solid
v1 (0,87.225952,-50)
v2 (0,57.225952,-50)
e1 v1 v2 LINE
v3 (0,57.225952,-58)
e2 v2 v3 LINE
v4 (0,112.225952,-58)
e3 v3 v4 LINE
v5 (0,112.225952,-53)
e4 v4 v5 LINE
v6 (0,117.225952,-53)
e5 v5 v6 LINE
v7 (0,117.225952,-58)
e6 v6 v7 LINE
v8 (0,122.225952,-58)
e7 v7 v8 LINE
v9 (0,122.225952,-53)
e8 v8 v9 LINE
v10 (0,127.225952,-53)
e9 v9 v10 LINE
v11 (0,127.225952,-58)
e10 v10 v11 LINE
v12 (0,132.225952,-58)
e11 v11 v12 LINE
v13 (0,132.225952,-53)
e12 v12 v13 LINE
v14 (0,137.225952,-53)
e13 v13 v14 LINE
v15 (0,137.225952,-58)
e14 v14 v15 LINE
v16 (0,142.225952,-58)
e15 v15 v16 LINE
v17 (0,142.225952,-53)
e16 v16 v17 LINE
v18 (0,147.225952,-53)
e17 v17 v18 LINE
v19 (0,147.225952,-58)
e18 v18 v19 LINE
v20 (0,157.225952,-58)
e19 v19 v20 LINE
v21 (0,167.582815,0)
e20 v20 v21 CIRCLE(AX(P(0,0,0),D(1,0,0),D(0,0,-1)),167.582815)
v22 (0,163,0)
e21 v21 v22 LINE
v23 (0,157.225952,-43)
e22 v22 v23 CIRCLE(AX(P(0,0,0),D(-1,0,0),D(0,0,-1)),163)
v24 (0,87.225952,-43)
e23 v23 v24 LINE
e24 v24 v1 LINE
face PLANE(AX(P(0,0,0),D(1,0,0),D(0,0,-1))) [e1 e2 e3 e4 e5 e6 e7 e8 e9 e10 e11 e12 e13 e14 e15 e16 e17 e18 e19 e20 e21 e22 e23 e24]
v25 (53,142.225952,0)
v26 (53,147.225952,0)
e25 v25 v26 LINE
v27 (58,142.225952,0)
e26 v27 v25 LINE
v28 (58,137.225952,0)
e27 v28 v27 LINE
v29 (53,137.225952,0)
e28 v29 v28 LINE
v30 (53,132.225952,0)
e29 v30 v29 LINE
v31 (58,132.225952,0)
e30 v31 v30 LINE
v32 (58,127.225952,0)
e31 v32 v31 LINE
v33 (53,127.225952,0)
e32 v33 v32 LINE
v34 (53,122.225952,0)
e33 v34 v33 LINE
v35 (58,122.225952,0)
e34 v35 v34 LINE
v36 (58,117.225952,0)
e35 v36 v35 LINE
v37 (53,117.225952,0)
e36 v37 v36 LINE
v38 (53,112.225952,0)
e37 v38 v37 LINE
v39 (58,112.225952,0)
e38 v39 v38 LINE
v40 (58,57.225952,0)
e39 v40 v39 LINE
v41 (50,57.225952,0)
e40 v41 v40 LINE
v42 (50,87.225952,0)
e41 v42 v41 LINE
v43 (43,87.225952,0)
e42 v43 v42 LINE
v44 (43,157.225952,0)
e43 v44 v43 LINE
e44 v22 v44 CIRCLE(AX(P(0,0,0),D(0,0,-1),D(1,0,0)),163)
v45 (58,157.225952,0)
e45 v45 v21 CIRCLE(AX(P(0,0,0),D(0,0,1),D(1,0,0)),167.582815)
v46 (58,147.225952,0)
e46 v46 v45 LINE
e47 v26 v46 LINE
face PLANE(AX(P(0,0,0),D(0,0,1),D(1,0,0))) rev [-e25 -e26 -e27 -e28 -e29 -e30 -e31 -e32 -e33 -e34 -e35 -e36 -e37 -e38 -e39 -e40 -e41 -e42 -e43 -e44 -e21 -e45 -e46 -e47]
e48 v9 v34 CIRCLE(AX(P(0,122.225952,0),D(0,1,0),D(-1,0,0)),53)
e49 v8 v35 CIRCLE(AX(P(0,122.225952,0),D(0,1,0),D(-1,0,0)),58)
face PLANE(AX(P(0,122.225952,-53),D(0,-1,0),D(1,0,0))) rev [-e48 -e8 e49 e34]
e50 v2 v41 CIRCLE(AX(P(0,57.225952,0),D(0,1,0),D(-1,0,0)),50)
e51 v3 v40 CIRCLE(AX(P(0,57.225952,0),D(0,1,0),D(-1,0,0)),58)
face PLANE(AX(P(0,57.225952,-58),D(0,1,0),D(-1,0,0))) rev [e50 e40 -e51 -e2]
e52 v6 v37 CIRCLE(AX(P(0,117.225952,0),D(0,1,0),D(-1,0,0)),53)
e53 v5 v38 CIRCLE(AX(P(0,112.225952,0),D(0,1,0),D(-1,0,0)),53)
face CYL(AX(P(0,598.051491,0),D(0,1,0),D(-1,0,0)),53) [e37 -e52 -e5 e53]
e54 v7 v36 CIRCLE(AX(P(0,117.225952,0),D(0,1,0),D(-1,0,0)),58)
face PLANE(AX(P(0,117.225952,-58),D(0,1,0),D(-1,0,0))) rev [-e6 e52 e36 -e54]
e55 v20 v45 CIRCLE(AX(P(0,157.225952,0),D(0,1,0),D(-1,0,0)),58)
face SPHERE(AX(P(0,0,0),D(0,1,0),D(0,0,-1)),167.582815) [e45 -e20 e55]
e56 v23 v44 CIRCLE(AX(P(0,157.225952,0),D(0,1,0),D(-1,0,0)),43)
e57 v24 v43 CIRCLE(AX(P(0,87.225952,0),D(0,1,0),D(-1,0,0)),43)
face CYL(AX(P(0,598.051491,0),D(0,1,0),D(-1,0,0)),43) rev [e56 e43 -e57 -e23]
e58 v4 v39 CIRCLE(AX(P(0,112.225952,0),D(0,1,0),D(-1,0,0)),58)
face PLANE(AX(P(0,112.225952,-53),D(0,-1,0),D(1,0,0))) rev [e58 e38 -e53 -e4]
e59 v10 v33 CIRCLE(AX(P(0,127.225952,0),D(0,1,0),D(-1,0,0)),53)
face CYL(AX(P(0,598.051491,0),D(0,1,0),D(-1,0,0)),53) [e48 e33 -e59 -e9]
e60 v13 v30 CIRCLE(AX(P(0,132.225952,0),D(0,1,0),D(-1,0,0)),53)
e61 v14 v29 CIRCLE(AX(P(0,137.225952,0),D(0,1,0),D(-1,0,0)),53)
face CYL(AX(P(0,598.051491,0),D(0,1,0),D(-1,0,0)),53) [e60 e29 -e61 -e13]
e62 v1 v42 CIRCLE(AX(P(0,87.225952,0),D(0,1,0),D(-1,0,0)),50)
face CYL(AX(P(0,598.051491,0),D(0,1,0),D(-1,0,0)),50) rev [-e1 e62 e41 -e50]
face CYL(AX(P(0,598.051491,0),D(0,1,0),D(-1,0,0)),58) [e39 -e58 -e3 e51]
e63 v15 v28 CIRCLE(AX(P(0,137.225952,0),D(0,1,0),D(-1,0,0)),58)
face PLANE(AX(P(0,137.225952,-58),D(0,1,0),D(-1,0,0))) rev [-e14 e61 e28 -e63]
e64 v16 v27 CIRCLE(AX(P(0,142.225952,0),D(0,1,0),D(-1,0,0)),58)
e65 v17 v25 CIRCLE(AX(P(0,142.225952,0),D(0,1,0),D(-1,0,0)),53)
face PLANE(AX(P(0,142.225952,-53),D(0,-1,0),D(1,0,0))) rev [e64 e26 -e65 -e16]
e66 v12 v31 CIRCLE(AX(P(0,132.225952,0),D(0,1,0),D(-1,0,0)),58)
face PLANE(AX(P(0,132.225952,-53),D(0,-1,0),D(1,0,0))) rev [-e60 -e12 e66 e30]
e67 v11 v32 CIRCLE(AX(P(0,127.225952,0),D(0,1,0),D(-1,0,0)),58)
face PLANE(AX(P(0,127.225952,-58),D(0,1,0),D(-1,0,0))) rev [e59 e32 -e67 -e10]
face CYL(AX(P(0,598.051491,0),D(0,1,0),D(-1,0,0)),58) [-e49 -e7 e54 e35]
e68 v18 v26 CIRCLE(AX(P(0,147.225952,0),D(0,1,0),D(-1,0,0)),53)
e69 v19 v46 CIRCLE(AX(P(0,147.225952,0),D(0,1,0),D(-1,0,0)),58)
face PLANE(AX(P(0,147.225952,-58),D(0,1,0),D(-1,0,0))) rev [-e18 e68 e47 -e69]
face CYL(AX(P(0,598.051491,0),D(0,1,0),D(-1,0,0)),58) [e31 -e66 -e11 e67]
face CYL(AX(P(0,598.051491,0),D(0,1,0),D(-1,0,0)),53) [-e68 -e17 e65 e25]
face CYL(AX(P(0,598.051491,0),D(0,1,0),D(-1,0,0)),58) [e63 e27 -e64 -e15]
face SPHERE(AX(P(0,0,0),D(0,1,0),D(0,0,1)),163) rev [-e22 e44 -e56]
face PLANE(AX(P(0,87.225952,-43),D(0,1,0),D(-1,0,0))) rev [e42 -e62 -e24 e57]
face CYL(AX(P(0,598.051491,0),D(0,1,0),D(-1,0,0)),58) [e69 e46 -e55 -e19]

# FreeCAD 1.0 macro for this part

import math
import FreeCAD as App
import Part
import Sketcher
from FreeCAD import Vector

doc = App.newDocument("Part")
body = doc.addObject("PartDesign::Body", "Body")

sketch1 = body.newObject("Sketcher::SketchObject", "Sketch")
sketch1.AttachmentSupport = (doc.getObject("XY_Plane"), [""])
sketch1.MapMode = "FlatFace"
sketch1.addGeometry([
    Part.LineSegment(Vector(0, 167.6, 0), Vector(0, 163, 0)),
    Part.ArcOfCircle(Part.Circle(Vector(0, 0, 0), Vector(0, 0, 1), 163), math.radians(74.7), math.radians(90)),
    Part.LineSegment(Vector(43, 157.2, 0), Vector(43, 87.2, 0)),
    Part.LineSegment(Vector(43, 87.2, 0), Vector(50, 87.2, 0)),
    Part.LineSegment(Vector(50, 87.2, 0), Vector(50, 57.2, 0)),
    Part.LineSegment(Vector(50, 57.2, 0), Vector(58, 57.2, 0)),
    Part.LineSegment(Vector(58, 57.2, 0), Vector(58, 112.2, 0)),
    Part.LineSegment(Vector(58, 112.2, 0), Vector(53, 112.2, 0)),
    Part.LineSegment(Vector(53, 112.2, 0), Vector(53, 117.2, 0)),
    Part.LineSegment(Vector(53, 117.2, 0), Vector(58, 117.2, 0)),
    Part.LineSegment(Vector(58, 117.2, 0), Vector(58, 122.2, 0)),
    Part.LineSegment(Vector(58, 122.2, 0), Vector(53, 122.2, 0)),
    Part.LineSegment(Vector(53, 122.2, 0), Vector(53, 127.2, 0)),
    Part.LineSegment(Vector(53, 127.2, 0), Vector(58, 127.2, 0)),
    Part.LineSegment(Vector(58, 127.2, 0), Vector(58, 132.2, 0)),
    Part.LineSegment(Vector(58, 132.2, 0), Vector(53, 132.2, 0)),
    Part.LineSegment(Vector(53, 132.2, 0), Vector(53, 137.2, 0)),
    Part.LineSegment(Vector(53, 137.2, 0), Vector(58, 137.2, 0)),
    Part.LineSegment(Vector(58, 137.2, 0), Vector(58, 142.2, 0)),
    Part.LineSegment(Vector(58, 142.2, 0), Vector(53, 142.2, 0)),
    Part.LineSegment(Vector(53, 142.2, 0), Vector(53, 147.2, 0)),
    Part.LineSegment(Vector(53, 147.2, 0), Vector(58, 147.2, 0)),
    Part.LineSegment(Vector(58, 147.2, 0), Vector(58, 157.2, 0)),
    Part.ArcOfCircle(Part.Circle(Vector(0, 0, 0), Vector(0, 0, 1), 167.6), math.radians(70), math.radians(90)),
], False)
sketch1.addConstraint([
    Sketcher.Constraint("Coincident", 0, 2, 1, 2),
    Sketcher.Constraint("Coincident", 1, 1, 2, 1),
    Sketcher.Constraint("Coincident", 2, 2, 3, 1),
    Sketcher.Constraint("Coincident", 3, 2, 4, 1),
    Sketcher.Constraint("Coincident", 4, 2, 5, 1),
    Sketcher.Constraint("Coincident", 5, 2, 6, 1),
    Sketcher.Constraint("Coincident", 6, 2, 7, 1),
    Sketcher.Constraint("Coincident", 7, 2, 8, 1),
    Sketcher.Constraint("Coincident", 8, 2, 9, 1),
    Sketcher.Constraint("Coincident", 9, 2, 10, 1),
    Sketcher.Constraint("Coincident", 10, 2, 11, 1),
    Sketcher.Constraint("Coincident", 11, 2, 12, 1),
    Sketcher.Constraint("Coincident", 12, 2, 13, 1),
    Sketcher.Constraint("Coincident", 13, 2, 14, 1),
    Sketcher.Constraint("Coincident", 14, 2, 15, 1),
    Sketcher.Constraint("Coincident", 15, 2, 16, 1),
    Sketcher.Constraint("Coincident", 16, 2, 17, 1),
    Sketcher.Constraint("Coincident", 17, 2, 18, 1),
    Sketcher.Constraint("Coincident", 18, 2, 19, 1),
    Sketcher.Constraint("Coincident", 19, 2, 20, 1),
    Sketcher.Constraint("Coincident", 20, 2, 21, 1),
    Sketcher.Constraint("Coincident", 21, 2, 22, 1),
    Sketcher.Constraint("Coincident", 22, 2, 23, 1),
    Sketcher.Constraint("Coincident", 23, 2, 0, 1),
    Sketcher.Constraint("Vertical", 0),
    Sketcher.Constraint("Vertical", 2),
    Sketcher.Constraint("Horizontal", 3),
    Sketcher.Constraint("Vertical", 4),
    Sketcher.Constraint("Horizontal", 5),
    Sketcher.Constraint("Vertical", 6),
    Sketcher.Constraint("Horizontal", 7),
    Sketcher.Constraint("Vertical", 8),
    Sketcher.Constraint("Horizontal", 9),
    Sketcher.Constraint("Vertical", 10),
    Sketcher.Constraint("Horizontal", 11),
    Sketcher.Constraint("Vertical", 12),
    Sketcher.Constraint("Horizontal", 13),
    Sketcher.Constraint("Vertical", 14),
    Sketcher.Constraint("Horizontal", 15),
    Sketcher.Constraint("Vertical", 16),
    Sketcher.Constraint("Horizontal", 17),
    Sketcher.Constraint("Vertical", 18),
    Sketcher.Constraint("Horizontal", 19),
    Sketcher.Constraint("Vertical", 20),
    Sketcher.Constraint("Horizontal", 21),
    Sketcher.Constraint("Vertical", 22),
    Sketcher.Constraint("Coincident", 1, 3, -1, 1),
    Sketcher.Constraint("Coincident", 23, 3, -1, 1),
    Sketcher.Constraint("PointOnObject", 0, 2, -2),
    Sketcher.Constraint("Horizontal", 1, 1, 22, 2),
    Sketcher.Constraint("Vertical", 6, 2, 9, 2),
    Sketcher.Constraint("Vertical", 8, 2, 11, 2),
    Sketcher.Constraint("Vertical", 10, 2, 13, 2),
    Sketcher.Constraint("Vertical", 12, 2, 15, 2),
    Sketcher.Constraint("Vertical", 14, 2, 17, 2),
    Sketcher.Constraint("Vertical", 16, 2, 19, 2),
    Sketcher.Constraint("Vertical", 18, 2, 21, 2),
    Sketcher.Constraint("Equal", 21, 8),
    Sketcher.Constraint("Equal", 8, 10),
    Sketcher.Constraint("Equal", 10, 12),
    Sketcher.Constraint("Equal", 12, 14),
    Sketcher.Constraint("Equal", 14, 16),
    Sketcher.Constraint("Equal", 16, 18),
    Sketcher.Constraint("Equal", 18, 20),
    Sketcher.Constraint("Radius", 1, 163.0),
    Sketcher.Constraint("DistanceX", 3, 1, 3, 2, 7.0),
    Sketcher.Constraint("DistanceX", 5, 1, 5, 2, 8.0),
    Sketcher.Constraint("DistanceX", 7, 2, 7, 1, 5.0),
    Sketcher.Constraint("DistanceY", 2, 2, 2, 1, 70.0),
    Sketcher.Constraint("DistanceY", 4, 2, 4, 1, 30.0),
    Sketcher.Constraint("DistanceY", 6, 1, 6, 2, 55.0),
    Sketcher.Constraint("DistanceX", -1, 1, 2, 2, 43.0),
])
revolution = body.newObject("PartDesign::Revolution", "Revolution")
revolution.Profile = sketch1
revolution.ReferenceAxis = (sketch1, ["V_Axis"])
revolution.Angle = 270
revolution.Reversed = True

doc.recompute()
